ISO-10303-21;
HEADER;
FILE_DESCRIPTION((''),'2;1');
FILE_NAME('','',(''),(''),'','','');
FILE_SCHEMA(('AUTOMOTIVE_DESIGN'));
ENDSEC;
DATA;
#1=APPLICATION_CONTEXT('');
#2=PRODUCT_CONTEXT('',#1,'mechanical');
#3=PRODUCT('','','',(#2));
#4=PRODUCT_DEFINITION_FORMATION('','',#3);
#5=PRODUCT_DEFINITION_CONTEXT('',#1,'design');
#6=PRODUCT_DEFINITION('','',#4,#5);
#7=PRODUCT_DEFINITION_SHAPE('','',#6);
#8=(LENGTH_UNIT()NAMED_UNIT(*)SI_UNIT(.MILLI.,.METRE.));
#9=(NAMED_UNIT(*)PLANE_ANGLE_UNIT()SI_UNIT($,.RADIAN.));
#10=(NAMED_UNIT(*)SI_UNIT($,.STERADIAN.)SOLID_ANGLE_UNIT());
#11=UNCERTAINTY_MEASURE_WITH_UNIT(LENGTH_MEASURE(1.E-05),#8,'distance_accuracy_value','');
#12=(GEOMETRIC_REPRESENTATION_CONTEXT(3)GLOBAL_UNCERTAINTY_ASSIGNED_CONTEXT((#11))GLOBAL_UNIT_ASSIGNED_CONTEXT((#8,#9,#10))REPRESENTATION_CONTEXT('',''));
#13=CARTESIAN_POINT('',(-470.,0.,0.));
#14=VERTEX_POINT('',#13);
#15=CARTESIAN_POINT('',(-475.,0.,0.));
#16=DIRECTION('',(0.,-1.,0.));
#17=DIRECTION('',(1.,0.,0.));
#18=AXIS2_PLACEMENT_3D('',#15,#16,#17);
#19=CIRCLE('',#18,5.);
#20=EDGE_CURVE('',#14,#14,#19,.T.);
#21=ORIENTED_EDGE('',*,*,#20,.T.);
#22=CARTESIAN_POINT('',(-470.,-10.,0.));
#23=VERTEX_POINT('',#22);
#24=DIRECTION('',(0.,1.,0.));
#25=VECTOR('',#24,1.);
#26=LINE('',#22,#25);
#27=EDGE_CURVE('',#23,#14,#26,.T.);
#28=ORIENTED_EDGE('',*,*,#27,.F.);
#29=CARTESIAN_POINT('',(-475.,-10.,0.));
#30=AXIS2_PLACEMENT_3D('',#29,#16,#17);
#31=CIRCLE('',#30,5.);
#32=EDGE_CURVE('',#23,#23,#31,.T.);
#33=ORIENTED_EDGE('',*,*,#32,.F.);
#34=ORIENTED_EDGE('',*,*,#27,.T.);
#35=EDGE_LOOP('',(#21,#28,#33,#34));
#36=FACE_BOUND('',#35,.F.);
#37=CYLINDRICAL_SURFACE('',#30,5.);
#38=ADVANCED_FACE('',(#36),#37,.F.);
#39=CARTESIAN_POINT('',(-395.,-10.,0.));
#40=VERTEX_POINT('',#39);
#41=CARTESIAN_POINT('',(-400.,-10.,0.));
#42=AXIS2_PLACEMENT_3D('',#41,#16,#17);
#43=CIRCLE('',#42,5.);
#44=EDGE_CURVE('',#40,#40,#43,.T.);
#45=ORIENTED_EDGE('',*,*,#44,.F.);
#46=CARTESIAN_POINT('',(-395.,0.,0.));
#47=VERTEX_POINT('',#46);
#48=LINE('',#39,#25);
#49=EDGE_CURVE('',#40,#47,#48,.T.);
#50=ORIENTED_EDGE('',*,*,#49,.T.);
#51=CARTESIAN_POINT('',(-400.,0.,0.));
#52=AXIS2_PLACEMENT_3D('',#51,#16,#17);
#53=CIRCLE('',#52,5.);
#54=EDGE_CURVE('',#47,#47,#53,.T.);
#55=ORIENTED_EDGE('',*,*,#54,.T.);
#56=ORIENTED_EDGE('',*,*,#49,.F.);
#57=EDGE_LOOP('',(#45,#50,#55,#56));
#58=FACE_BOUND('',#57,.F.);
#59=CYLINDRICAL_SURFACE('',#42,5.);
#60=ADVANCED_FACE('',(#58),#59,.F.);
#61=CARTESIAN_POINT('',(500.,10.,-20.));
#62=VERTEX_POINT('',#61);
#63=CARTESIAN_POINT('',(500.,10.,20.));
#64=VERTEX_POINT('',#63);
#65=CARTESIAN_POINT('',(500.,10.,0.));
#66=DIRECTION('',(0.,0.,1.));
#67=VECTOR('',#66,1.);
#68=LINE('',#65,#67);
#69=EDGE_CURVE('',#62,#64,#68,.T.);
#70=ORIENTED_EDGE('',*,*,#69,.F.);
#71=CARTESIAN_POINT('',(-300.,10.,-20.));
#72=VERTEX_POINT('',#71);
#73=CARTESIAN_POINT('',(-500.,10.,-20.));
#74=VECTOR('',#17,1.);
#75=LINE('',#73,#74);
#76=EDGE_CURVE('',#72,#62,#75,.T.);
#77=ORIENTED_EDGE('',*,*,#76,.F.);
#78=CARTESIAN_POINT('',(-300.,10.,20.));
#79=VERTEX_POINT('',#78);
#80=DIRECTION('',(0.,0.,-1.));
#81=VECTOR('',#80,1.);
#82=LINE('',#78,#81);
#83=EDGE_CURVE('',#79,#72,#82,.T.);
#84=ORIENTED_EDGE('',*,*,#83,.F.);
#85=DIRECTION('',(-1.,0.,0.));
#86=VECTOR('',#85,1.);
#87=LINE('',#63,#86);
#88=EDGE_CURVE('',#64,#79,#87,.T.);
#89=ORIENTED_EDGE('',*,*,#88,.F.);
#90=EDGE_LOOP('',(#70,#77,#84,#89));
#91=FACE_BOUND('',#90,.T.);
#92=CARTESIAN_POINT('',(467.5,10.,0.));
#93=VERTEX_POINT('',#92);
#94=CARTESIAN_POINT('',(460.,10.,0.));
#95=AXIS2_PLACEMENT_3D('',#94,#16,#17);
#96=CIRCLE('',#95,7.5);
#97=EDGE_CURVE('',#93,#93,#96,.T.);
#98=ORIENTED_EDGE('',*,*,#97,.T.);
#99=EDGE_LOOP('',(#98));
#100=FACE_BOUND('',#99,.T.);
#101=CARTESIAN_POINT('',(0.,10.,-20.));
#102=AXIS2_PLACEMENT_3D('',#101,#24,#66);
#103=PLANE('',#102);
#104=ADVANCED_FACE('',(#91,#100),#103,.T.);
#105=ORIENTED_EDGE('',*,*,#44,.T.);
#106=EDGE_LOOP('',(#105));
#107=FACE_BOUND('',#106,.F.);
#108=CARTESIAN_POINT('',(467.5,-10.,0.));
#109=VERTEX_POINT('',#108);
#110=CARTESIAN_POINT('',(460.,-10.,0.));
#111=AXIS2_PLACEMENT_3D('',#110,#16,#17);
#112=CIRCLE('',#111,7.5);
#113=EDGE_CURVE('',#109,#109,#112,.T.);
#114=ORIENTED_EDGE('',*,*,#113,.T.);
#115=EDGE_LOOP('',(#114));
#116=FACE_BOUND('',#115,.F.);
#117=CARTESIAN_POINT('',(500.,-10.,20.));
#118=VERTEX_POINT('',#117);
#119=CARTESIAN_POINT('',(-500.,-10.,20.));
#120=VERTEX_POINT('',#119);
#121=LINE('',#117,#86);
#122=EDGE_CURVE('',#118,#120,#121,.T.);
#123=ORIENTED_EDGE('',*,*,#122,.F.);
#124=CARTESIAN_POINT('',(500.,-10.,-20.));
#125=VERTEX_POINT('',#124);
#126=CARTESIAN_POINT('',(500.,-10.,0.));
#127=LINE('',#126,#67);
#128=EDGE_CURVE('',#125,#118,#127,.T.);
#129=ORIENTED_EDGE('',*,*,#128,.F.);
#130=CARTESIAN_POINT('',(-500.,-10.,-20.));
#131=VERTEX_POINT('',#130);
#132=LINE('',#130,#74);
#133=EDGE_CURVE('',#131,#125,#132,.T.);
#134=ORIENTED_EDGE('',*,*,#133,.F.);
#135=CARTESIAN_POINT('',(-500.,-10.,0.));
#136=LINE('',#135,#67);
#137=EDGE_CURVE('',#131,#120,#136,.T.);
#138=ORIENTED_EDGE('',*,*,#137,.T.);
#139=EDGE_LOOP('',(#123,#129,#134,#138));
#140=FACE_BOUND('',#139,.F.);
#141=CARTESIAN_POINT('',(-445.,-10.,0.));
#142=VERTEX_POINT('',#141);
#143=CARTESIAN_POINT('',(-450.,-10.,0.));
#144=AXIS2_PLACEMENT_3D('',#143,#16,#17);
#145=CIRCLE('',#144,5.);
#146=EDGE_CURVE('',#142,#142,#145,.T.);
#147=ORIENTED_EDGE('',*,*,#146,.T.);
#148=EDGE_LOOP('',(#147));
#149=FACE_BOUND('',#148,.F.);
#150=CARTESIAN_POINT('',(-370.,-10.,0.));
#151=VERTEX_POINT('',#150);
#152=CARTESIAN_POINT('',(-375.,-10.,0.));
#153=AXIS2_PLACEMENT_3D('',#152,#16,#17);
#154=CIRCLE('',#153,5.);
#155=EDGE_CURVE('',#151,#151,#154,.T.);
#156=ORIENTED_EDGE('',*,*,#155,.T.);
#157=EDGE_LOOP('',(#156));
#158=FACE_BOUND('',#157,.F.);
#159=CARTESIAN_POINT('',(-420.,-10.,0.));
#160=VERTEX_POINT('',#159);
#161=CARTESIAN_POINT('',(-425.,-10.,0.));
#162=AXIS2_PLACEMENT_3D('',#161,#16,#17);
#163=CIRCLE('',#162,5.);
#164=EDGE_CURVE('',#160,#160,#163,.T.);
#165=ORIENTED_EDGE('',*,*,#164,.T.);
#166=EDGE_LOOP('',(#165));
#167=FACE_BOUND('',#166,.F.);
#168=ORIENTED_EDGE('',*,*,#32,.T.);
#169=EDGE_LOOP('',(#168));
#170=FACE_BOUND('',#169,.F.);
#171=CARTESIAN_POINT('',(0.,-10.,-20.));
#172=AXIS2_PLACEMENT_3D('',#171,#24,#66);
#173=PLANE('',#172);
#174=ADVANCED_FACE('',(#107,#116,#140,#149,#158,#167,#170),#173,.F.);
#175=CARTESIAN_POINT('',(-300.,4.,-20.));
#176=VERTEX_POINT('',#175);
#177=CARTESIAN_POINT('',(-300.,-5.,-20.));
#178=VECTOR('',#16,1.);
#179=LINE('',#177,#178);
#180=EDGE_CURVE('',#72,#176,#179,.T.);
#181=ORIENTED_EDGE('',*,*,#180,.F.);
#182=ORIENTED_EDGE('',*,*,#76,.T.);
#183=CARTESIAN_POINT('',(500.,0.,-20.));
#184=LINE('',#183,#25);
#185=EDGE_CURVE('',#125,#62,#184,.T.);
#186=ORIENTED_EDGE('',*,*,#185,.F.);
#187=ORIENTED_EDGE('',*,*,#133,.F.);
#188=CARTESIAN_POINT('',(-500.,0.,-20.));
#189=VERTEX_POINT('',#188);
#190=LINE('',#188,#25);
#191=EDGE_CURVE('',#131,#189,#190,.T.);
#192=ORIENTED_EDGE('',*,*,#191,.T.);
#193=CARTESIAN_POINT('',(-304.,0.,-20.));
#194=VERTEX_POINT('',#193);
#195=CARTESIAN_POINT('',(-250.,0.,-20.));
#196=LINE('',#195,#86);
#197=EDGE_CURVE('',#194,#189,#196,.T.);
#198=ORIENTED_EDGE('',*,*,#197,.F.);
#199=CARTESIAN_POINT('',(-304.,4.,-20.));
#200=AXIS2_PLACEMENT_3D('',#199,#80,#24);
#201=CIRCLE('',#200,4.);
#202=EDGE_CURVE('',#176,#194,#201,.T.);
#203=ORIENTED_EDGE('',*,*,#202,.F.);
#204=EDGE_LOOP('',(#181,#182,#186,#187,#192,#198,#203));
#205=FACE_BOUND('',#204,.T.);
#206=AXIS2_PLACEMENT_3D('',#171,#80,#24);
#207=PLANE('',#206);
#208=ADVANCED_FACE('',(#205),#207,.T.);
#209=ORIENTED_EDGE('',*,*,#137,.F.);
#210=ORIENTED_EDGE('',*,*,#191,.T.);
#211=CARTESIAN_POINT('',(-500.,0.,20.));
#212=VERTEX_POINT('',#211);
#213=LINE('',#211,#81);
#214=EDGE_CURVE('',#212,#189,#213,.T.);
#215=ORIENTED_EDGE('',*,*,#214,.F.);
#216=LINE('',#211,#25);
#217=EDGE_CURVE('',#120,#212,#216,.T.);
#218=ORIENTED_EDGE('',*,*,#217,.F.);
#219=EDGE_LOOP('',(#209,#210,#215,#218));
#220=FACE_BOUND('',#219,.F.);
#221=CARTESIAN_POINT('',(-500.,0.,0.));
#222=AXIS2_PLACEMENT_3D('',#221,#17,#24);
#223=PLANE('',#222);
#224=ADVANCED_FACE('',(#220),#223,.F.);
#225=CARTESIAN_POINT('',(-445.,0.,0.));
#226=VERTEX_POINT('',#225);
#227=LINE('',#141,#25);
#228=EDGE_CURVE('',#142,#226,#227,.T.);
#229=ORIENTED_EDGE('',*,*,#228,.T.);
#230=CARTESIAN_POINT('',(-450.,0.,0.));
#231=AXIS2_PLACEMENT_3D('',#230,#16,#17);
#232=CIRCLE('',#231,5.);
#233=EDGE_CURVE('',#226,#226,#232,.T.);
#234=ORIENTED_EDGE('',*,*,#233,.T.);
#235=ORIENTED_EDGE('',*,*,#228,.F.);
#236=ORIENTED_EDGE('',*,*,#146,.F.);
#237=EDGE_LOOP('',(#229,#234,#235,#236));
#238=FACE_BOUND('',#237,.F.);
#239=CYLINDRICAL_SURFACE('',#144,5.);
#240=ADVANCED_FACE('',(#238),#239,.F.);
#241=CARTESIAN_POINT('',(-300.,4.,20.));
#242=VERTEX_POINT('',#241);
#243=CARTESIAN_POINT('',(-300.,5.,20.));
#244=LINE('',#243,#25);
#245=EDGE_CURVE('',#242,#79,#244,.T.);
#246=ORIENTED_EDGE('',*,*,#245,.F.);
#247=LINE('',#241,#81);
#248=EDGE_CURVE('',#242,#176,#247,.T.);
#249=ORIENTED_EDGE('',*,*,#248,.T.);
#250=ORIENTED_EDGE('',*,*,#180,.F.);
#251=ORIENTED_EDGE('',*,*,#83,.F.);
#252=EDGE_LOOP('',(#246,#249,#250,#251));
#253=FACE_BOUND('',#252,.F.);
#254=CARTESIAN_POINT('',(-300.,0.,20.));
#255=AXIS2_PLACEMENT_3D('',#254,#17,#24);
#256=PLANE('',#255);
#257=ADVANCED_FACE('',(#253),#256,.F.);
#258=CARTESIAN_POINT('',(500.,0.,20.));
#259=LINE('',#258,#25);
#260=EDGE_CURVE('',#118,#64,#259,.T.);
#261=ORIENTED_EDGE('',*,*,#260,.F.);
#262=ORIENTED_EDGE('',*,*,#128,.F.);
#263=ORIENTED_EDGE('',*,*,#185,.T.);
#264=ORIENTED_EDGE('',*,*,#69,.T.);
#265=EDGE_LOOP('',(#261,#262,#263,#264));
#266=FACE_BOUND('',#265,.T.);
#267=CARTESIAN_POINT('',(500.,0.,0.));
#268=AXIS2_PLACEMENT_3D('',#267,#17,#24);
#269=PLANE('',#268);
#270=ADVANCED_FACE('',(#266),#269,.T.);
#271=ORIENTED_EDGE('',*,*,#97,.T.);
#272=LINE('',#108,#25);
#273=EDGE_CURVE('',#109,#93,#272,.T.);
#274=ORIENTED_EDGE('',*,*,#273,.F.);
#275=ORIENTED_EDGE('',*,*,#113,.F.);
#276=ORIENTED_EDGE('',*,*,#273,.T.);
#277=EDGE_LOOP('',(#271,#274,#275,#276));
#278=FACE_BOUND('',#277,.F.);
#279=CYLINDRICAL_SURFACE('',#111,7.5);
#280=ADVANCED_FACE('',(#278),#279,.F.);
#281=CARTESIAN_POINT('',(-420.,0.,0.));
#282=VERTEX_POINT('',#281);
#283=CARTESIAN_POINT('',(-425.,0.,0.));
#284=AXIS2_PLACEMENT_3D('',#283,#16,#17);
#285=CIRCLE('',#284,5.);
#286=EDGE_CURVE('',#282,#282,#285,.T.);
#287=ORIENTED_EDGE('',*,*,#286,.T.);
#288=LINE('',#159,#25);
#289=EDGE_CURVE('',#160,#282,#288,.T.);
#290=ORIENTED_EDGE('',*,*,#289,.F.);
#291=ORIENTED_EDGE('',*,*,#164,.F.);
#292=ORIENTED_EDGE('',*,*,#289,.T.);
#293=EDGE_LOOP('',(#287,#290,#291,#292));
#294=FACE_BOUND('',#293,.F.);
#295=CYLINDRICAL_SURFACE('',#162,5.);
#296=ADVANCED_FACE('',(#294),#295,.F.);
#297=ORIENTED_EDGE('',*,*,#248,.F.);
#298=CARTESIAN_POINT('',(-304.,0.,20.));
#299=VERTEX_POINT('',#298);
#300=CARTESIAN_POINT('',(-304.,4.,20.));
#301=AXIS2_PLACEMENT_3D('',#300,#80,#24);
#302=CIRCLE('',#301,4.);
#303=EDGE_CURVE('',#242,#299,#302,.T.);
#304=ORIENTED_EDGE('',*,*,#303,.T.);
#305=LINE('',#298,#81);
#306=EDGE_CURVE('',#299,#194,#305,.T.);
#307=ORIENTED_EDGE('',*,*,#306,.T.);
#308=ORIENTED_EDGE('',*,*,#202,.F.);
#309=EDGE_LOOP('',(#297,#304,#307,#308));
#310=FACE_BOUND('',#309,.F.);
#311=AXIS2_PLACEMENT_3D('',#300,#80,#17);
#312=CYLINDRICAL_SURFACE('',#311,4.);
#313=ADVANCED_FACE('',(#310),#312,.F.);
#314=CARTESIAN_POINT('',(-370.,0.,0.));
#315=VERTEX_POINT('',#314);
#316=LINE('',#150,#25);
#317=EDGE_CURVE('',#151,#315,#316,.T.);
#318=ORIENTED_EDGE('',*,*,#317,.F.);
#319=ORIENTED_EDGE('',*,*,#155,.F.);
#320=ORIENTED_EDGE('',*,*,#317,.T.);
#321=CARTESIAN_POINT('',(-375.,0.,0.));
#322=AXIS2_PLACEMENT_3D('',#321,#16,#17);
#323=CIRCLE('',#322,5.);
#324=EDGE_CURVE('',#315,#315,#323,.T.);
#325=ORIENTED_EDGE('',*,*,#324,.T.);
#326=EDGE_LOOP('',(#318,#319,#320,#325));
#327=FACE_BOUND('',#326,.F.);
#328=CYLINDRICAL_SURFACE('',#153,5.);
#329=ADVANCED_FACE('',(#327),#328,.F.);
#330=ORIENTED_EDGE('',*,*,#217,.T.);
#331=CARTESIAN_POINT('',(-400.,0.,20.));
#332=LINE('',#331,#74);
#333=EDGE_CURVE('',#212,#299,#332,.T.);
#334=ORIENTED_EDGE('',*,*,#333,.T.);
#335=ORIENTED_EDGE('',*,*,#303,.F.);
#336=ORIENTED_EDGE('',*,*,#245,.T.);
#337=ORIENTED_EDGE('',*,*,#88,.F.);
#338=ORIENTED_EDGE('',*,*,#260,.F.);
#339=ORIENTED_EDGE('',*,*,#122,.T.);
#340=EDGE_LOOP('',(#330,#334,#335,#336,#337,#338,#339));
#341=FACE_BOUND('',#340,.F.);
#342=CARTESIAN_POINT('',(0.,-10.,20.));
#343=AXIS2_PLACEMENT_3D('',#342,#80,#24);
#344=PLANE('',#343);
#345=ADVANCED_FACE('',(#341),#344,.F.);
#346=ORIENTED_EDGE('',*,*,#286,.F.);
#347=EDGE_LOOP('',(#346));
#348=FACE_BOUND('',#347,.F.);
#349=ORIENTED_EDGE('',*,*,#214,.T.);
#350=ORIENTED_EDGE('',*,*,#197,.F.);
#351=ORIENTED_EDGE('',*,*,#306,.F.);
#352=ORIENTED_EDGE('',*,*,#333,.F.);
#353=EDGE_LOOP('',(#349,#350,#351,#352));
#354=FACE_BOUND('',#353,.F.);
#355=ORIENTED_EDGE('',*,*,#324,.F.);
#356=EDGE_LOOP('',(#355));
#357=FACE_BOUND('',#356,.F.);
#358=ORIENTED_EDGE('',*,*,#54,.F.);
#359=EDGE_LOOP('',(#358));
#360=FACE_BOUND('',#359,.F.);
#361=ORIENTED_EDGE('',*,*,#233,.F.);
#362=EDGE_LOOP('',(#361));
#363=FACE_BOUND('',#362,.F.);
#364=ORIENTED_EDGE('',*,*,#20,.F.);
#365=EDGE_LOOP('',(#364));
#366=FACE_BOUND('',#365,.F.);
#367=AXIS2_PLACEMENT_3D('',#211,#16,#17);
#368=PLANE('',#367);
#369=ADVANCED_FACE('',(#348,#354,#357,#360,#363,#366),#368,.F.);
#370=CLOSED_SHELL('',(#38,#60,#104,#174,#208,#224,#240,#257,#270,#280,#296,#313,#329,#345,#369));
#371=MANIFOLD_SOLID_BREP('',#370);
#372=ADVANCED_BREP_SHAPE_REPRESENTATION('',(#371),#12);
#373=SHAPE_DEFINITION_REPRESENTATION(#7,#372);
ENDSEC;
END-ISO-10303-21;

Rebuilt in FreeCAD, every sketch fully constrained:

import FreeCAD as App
import Part
import Sketcher

V = App.Vector


def edges_at(feature, points):
    """Names of the edges that pass closest to the given points."""
    edges = feature.Shape.Edges
    near = lambda p: min(range(len(edges)), key=lambda i: edges[i].distToShape(Part.Vertex(*p))[0])
    return sorted({f"Edge{near(p) + 1}" for p in points})


def add_polygon(sketch, points):
    """Adds a closed chain of lines whose ends are joined by coincident constraints."""
    first, n = sketch.GeometryCount, len(points)
    for a, b in zip(points, points[1:] + points[:1]):
        sketch.addGeometry(Part.LineSegment(App.Vector(*a, 0), App.Vector(*b, 0)), False)
    for i in range(n):
        sketch.addConstraint(Sketcher.Constraint("Coincident", first + i, 2, first + (i + 1) % n, 1))

doc = App.newDocument("Part")
body = doc.addObject("PartDesign::Body", "Body")

# Sketch on YZ plane
sketch1 = body.newObject("Sketcher::SketchObject", "Sketch")
sketch1.AttachmentSupport = (doc.getObject("YZ_Plane"), [""])
sketch1.MapMode = "FlatFace"
add_polygon(sketch1, [(-10, 20), (-10, -20), (10, -20), (10, 20)])  # lines 0-3
sketch1.addConstraint([
    Sketcher.Constraint("Vertical", 0),
    Sketcher.Constraint("Horizontal", 1),
    Sketcher.Constraint("Vertical", 2),
    Sketcher.Constraint("Horizontal", 3),
    Sketcher.Constraint("Symmetric", 0, 2, 2, 2, -1, 1),
    Sketcher.Constraint("DistanceX", 1, 1, 1, 2, 20.0),
    Sketcher.Constraint("DistanceY", 0, 2, 0, 1, 40.0),
])
pad1 = body.newObject("PartDesign::Pad", "Pad")
pad1.Profile = sketch1
pad1.Length = 1000
pad1.Midplane = True

# Sketch on XZ plane
sketch2 = body.newObject("Sketcher::SketchObject", "Sketch001")
sketch2.AttachmentSupport = (doc.getObject("XZ_Plane"), [""])
sketch2.MapMode = "FlatFace"
sketch2.AttachmentOffset = App.Placement(V(0, 0, 10), App.Rotation())
sketch2.addGeometry([
    Part.Circle(V(460, 0, 0), V(0, 0, 1), 8),  # 0
    Part.Circle(V(-475, 0, 0), V(0, 0, 1), 5),  # 1
    Part.Circle(V(-450, 0, 0), V(0, 0, 1), 5),  # 2
    Part.Circle(V(-425, 0, 0), V(0, 0, 1), 5),  # 3
    Part.Circle(V(-400, 0, 0), V(0, 0, 1), 5),  # 4
    Part.Circle(V(-375, 0, 0), V(0, 0, 1), 5),  # 5
], False)
sketch2.addConstraint([
    Sketcher.Constraint("Equal", 1, 2),
    Sketcher.Constraint("Equal", 2, 3),
    Sketcher.Constraint("Equal", 3, 4),
    Sketcher.Constraint("Equal", 4, 5),
    Sketcher.Constraint("PointOnObject", 0, 3, -1),
    Sketcher.Constraint("PointOnObject", 1, 3, -1),
    Sketcher.Constraint("PointOnObject", 2, 3, -1),
    Sketcher.Constraint("PointOnObject", 3, 3, -1),
    Sketcher.Constraint("PointOnObject", 4, 3, -1),
    Sketcher.Constraint("PointOnObject", 5, 3, -1),
    Sketcher.Constraint("Diameter", 0, 15.0),
    Sketcher.Constraint("Diameter", 1, 10.0),
    Sketcher.Constraint("DistanceX", -1, 1, 0, 3, 460.0),
    Sketcher.Constraint("DistanceX", 1, 3, -1, 1, 475.0),
    Sketcher.Constraint("DistanceX", 2, 3, -1, 1, 450.0),
    Sketcher.Constraint("DistanceX", 3, 3, -1, 1, 425.0),
    Sketcher.Constraint("DistanceX", 4, 3, -1, 1, 400.0),
    Sketcher.Constraint("DistanceX", 5, 3, -1, 1, 375.0),
])
pocket1 = body.newObject("PartDesign::Pocket", "Pocket")
pocket1.Profile = sketch2
pocket1.Length = 25

# Sketch on XZ plane
sketch3 = body.newObject("Sketcher::SketchObject", "Sketch002")
sketch3.AttachmentSupport = (doc.getObject("XZ_Plane"), [""])
sketch3.MapMode = "FlatFace"
sketch3.AttachmentOffset = App.Placement(V(0, 0, 10), App.Rotation())
sketch3.addGeometry([
    Part.Circle(V(460, 0, 0), V(0, 0, 1), 8),  # 0
    Part.Circle(V(-475, 0, 0), V(0, 0, 1), 5),  # 1
    Part.Circle(V(-450, 0, 0), V(0, 0, 1), 5),  # 2
    Part.Circle(V(-425, 0, 0), V(0, 0, 1), 5),  # 3
    Part.Circle(V(-400, 0, 0), V(0, 0, 1), 5),  # 4
    Part.Circle(V(-375, 0, 0), V(0, 0, 1), 5),  # 5
], False)
sketch3.addConstraint([
    Sketcher.Constraint("Equal", 1, 2),
    Sketcher.Constraint("Equal", 2, 3),
    Sketcher.Constraint("Equal", 3, 4),
    Sketcher.Constraint("Equal", 4, 5),
    Sketcher.Constraint("PointOnObject", 0, 3, -1),
    Sketcher.Constraint("PointOnObject", 1, 3, -1),
    Sketcher.Constraint("PointOnObject", 2, 3, -1),
    Sketcher.Constraint("PointOnObject", 3, 3, -1),
    Sketcher.Constraint("PointOnObject", 4, 3, -1),
    Sketcher.Constraint("PointOnObject", 5, 3, -1),
    Sketcher.Constraint("Diameter", 0, 15.0),
    Sketcher.Constraint("Diameter", 1, 10.0),
    Sketcher.Constraint("DistanceX", -1, 1, 0, 3, 460.0),
    Sketcher.Constraint("DistanceX", 1, 3, -1, 1, 475.0),
    Sketcher.Constraint("DistanceX", 2, 3, -1, 1, 450.0),
    Sketcher.Constraint("DistanceX", 3, 3, -1, 1, 425.0),
    Sketcher.Constraint("DistanceX", 4, 3, -1, 1, 400.0),
    Sketcher.Constraint("DistanceX", 5, 3, -1, 1, 375.0),
])
pocket2 = body.newObject("PartDesign::Pocket", "Pocket001")
pocket2.Profile = sketch3
pocket2.Length = 25

# Sketch on XY plane
sketch4 = body.newObject("Sketcher::SketchObject", "Sketch003")
sketch4.AttachmentSupport = (doc.getObject("XY_Plane"), [""])
sketch4.MapMode = "FlatFace"
sketch4.AttachmentOffset = App.Placement(V(0, 0, 20), App.Rotation())
add_polygon(sketch4, [(-500, 10), (-500, 0), (-300, 0), (-300, 10)])  # lines 0-3
sketch4.addConstraint([
    Sketcher.Constraint("Vertical", 0),
    Sketcher.Constraint("Horizontal", 1),
    Sketcher.Constraint("Vertical", 2),
    Sketcher.Constraint("Horizontal", 3),
    Sketcher.Constraint("PointOnObject", 0, 2, -1),
    Sketcher.Constraint("DistanceX", 1, 1, 1, 2, 200.0),
    Sketcher.Constraint("DistanceY", 0, 2, 0, 1, 10.0),
    Sketcher.Constraint("DistanceX", 0, 2, -1, 1, 500.0),
])
pocket3 = body.newObject("PartDesign::Pocket", "Pocket002")
pocket3.Profile = sketch4
pocket3.Type = "ThroughAll"
doc.recompute()

fillet = body.newObject("PartDesign::Fillet", "Fillet")
fillet.Base = (pocket3, edges_at(pocket3, [(-300, 0, 0)]))
fillet.Radius = 4

doc.recompute()
